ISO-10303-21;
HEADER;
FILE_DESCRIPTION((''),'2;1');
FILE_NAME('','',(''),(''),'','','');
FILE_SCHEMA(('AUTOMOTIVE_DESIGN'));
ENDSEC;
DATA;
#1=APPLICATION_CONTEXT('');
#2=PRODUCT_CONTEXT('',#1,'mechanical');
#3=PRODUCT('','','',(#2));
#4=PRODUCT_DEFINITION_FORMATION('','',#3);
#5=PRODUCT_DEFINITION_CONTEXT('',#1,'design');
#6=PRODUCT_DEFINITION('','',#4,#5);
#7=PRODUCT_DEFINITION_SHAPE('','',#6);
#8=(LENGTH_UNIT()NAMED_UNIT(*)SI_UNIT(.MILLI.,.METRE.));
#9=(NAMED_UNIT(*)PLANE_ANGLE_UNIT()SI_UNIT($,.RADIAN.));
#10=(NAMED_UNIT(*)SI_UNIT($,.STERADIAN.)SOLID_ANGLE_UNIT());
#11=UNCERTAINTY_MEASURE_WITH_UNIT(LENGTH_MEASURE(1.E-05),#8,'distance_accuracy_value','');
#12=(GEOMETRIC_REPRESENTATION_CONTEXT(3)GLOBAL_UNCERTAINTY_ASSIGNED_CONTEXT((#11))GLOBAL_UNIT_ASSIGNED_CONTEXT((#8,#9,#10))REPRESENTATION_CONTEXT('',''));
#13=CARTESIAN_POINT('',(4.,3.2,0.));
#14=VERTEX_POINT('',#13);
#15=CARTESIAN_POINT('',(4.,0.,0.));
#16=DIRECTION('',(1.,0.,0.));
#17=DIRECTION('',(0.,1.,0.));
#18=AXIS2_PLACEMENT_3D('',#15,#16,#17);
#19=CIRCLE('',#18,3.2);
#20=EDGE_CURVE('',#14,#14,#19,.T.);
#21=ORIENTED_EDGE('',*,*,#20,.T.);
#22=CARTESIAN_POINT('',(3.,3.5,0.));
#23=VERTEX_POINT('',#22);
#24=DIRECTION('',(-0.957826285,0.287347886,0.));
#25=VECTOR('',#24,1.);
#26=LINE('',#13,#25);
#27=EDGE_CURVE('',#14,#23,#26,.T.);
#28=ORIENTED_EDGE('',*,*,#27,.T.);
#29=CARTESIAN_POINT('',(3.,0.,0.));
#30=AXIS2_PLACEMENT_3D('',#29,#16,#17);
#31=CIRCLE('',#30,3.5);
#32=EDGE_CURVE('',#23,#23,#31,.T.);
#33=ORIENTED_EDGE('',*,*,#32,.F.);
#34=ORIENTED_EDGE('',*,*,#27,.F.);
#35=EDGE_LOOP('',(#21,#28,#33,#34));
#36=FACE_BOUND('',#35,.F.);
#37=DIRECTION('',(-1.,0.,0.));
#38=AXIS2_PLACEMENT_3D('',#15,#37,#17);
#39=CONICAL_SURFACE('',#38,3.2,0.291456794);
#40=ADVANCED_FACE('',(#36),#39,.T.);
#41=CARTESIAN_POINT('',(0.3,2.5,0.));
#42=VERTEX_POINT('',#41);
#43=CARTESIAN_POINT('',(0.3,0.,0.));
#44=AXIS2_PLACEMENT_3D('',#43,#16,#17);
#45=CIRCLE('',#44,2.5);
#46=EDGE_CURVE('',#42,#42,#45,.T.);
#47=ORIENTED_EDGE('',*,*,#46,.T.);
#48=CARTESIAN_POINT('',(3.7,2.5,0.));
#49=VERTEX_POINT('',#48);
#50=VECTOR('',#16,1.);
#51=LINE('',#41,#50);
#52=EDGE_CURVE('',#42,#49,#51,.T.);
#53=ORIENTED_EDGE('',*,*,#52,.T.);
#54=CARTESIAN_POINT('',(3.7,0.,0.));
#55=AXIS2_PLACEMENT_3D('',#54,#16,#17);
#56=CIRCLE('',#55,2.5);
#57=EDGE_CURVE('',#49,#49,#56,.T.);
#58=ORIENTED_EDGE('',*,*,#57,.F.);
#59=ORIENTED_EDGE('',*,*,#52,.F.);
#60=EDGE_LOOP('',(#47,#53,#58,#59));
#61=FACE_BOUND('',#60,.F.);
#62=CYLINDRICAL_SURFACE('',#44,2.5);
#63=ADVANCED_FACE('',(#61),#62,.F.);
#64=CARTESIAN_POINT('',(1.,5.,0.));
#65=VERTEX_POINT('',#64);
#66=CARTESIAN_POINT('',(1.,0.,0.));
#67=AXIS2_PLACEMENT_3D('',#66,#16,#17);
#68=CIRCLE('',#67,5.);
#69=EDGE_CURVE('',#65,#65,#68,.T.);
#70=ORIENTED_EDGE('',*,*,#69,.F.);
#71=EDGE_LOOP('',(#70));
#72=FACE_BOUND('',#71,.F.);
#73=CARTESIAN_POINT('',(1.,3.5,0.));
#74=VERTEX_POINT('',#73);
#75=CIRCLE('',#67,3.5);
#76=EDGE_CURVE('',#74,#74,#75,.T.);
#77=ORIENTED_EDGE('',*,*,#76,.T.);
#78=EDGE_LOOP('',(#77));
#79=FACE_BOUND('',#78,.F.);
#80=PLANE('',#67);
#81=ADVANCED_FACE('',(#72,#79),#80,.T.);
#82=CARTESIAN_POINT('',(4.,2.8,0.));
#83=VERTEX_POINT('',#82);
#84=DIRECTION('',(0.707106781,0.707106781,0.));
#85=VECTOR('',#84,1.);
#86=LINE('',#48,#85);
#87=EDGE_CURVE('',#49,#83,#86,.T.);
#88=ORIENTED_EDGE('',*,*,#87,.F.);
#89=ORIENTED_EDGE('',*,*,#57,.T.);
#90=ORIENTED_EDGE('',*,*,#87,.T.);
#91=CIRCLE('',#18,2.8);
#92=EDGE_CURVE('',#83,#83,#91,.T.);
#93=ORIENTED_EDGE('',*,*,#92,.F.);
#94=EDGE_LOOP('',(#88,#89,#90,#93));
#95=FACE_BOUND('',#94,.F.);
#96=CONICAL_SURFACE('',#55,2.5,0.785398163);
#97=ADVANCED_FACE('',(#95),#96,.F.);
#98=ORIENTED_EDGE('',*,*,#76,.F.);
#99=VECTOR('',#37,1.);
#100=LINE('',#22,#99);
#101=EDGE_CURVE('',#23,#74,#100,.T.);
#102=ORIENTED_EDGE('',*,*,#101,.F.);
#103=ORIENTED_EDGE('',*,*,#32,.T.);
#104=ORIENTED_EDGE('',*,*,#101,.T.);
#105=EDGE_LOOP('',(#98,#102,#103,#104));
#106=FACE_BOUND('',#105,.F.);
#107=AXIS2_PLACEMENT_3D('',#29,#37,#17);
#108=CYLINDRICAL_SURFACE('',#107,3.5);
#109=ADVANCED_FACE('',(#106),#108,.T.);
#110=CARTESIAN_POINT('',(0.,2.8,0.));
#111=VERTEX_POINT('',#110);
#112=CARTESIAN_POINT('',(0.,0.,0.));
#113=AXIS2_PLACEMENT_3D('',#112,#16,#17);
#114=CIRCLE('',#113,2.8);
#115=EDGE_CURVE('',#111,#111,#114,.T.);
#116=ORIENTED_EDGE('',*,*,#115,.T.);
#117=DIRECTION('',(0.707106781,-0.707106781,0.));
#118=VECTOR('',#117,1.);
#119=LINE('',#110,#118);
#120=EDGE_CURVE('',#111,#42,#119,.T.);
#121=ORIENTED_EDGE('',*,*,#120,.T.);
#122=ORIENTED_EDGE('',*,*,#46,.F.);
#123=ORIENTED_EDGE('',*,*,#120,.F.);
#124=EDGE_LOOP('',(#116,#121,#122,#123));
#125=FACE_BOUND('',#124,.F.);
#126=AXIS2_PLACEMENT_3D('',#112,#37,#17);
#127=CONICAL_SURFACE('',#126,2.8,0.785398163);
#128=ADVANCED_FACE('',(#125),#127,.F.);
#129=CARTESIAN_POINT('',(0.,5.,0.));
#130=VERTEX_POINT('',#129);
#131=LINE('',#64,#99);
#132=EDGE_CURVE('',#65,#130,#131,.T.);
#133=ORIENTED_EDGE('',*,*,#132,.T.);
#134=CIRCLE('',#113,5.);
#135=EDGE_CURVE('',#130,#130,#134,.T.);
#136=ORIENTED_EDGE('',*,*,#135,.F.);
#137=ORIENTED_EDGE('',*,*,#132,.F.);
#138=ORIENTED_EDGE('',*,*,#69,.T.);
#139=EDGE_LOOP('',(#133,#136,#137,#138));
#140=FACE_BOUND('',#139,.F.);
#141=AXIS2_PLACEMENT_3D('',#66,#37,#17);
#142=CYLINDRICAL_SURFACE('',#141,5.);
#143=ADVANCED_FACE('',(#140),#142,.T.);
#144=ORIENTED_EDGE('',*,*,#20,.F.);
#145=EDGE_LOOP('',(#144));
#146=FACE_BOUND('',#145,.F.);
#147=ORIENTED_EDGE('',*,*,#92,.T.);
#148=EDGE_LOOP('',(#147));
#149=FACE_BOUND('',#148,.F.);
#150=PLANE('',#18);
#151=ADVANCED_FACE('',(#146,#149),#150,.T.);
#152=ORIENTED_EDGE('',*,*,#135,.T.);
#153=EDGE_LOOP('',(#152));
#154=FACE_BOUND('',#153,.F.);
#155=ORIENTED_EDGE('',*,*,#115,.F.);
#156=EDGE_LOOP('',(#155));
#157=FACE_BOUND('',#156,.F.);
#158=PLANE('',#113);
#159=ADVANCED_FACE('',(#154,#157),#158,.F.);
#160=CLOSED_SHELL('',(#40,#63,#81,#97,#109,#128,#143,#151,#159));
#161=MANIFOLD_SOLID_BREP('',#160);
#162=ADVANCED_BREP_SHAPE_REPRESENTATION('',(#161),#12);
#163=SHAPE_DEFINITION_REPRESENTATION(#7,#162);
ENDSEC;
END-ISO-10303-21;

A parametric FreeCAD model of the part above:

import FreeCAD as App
import Part
import Sketcher
from FreeCAD import Vector
Q = App.Units.Quantity


def add_polygon(sketch, points):
    """Adds a closed chain of lines whose ends are joined by coincident constraints."""
    first, n = sketch.GeometryCount, len(points)
    for a, b in zip(points, points[1:] + points[:1]):
        sketch.addGeometry(Part.LineSegment(App.Vector(*a, 0), App.Vector(*b, 0)), False)
    for i in range(n):
        sketch.addConstraint(Sketcher.Constraint("Coincident", first + i, 2, first + (i + 1) % n, 1))

doc = App.newDocument("Part")
body = doc.addObject("PartDesign::Body", "Body")

# Sketch on XY plane
sketch1 = body.newObject("Sketcher::SketchObject", "Sketch")
sketch1.AttachmentSupport = (doc.getObject("XY_Plane"), [""])
sketch1.MapMode = "FlatFace"
add_polygon(sketch1, [(0, 5), (0, 2.8), (0.3, 2.5), (3.7, 2.5), (4, 2.8), (4, 3.2), (3, 3.5), (1, 3.5), (1, 5)])  # lines 0-8
sketch1.addConstraint(Sketcher.Constraint("Vertical", 0))
sketch1.addConstraint(Sketcher.Constraint("Horizontal", 2))
sketch1.addConstraint(Sketcher.Constraint("Vertical", 4))
sketch1.addConstraint(Sketcher.Constraint("Horizontal", 6))
sketch1.addConstraint(Sketcher.Constraint("Vertical", 7))
sketch1.addConstraint(Sketcher.Constraint("Horizontal", 8))
sketch1.addConstraint(Sketcher.Constraint("PointOnObject", 0, 2, -2))
sketch1.addConstraint(Sketcher.Constraint("Perpendicular", 1, 3))
sketch1.addConstraint(Sketcher.Constraint("Horizontal", 0, 2, 3, 2))
sketch1.addConstraint(Sketcher.Constraint("Equal", 1, 3))
sketch1.addConstraint(Sketcher.Constraint("DistanceX", 6, 2, 6, 1, Q("2 mm")))
sketch1.addConstraint(Sketcher.Constraint("DistanceX", 8, 2, 8, 1, Q("1 mm")))
sketch1.addConstraint(Sketcher.Constraint("DistanceX", 2, 1, 2, 2, Q("3.4 mm")))
sketch1.addConstraint(Sketcher.Constraint("DistanceY", 0, 2, 0, 1, Q("2.2 mm")))
sketch1.addConstraint(Sketcher.Constraint("DistanceY", 4, 1, 4, 2, Q("0.4 mm")))
sketch1.addConstraint(Sketcher.Constraint("DistanceY", 7, 1, 7, 2, Q("1.5 mm")))
sketch1.addConstraint(Sketcher.Constraint("DistanceX", -1, 1, 3, 2, Q("4 mm")))
sketch1.addConstraint(Sketcher.Constraint("DistanceY", -1, 1, 7, 2, Q("5 mm")))
revolution = body.newObject("PartDesign::Revolution", "Revolution")
revolution.Profile = sketch1
revolution.ReferenceAxis = (sketch1, ["H_Axis"])
revolution.Angle = 360

doc.recompute()
